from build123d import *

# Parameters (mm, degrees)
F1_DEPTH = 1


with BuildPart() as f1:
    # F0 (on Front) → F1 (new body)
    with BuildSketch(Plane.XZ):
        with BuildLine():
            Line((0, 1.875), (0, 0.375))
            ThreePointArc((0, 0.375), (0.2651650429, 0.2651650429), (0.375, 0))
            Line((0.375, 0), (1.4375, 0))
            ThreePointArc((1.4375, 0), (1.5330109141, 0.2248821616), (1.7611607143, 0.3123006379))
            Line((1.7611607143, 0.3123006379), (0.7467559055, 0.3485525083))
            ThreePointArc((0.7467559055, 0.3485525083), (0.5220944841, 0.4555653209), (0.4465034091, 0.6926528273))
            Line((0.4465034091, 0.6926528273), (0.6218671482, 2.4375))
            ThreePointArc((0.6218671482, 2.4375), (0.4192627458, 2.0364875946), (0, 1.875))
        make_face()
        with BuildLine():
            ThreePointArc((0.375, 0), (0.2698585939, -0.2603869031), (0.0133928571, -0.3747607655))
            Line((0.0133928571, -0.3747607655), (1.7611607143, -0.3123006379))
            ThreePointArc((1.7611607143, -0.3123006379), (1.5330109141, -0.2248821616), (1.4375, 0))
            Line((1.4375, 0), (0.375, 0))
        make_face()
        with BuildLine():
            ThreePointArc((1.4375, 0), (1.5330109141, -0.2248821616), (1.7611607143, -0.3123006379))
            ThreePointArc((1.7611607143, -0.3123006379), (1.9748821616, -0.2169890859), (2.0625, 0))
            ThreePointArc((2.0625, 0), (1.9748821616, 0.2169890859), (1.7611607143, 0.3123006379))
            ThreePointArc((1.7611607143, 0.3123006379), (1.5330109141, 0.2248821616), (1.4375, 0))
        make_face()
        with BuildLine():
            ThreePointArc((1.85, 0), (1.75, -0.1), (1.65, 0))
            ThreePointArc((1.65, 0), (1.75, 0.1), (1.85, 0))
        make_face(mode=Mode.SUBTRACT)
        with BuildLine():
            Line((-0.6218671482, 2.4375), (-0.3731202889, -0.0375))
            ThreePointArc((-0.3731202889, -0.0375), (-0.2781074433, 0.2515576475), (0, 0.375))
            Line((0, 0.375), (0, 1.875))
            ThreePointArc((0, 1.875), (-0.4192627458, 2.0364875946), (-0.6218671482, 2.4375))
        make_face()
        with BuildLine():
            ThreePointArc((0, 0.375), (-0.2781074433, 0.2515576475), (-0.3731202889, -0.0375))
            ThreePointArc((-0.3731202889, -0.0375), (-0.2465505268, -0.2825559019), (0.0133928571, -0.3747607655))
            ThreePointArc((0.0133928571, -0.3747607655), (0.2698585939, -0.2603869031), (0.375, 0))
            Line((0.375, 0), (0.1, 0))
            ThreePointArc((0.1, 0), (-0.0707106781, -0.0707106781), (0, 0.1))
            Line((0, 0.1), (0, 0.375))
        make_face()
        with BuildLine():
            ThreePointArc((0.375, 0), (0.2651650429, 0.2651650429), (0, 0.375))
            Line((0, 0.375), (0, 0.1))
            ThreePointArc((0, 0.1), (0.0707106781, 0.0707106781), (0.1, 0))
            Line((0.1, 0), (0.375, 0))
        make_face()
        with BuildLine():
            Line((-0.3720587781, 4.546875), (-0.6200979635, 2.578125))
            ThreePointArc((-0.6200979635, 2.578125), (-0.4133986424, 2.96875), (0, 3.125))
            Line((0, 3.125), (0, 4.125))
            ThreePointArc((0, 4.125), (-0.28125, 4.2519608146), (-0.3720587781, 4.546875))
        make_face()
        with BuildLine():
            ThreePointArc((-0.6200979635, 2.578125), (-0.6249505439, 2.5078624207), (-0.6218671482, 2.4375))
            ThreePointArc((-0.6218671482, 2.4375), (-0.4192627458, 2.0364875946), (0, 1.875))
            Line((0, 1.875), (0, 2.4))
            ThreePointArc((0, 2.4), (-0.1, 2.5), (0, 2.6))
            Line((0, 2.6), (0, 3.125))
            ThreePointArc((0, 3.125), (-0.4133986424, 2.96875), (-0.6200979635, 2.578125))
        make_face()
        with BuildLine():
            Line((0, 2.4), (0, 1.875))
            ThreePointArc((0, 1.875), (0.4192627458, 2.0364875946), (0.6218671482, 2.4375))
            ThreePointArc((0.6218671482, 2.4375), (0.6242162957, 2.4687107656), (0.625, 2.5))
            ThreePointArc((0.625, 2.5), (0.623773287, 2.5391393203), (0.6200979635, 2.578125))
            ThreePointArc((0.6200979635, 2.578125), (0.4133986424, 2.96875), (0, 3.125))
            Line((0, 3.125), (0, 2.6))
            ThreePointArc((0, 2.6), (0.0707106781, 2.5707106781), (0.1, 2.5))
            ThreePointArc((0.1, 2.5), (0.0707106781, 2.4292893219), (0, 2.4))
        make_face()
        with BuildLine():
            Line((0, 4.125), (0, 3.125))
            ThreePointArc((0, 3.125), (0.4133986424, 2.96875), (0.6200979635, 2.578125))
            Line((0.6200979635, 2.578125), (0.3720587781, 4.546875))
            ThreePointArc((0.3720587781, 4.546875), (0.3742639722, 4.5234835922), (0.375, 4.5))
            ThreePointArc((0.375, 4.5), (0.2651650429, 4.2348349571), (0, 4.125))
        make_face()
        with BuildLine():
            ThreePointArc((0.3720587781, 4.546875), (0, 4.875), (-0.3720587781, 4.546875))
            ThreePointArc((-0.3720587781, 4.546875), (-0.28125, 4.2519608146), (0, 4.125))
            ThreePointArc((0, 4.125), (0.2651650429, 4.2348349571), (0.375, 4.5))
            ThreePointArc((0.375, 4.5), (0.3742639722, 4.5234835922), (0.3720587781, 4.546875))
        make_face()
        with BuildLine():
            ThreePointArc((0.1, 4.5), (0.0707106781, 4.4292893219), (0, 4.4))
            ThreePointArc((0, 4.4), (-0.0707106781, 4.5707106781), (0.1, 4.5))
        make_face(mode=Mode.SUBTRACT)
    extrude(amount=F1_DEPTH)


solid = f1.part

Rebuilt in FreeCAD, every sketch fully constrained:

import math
import FreeCAD as App
import Part
import Sketcher

V = App.Vector
Q = App.Units.Quantity

doc = App.newDocument("Part")
body = doc.addObject("PartDesign::Body", "Body")

sketch1 = body.newObject("Sketcher::SketchObject", "Sketch")
sketch1.AttachmentSupport = (doc.getObject("XZ_Plane"), [""])
sketch1.MapMode = "FlatFace"
sketch1.addGeometry([
    Part.LineSegment(V(-0.37, 4.55, 0), V(-0.62, 2.58, 0)),
    Part.ArcOfCircle(Part.Circle(V(0, 2.5, 0), V(0, 0, 1), 0.63), math.radians(172.82), math.radians(185.74)),
    Part.LineSegment(V(-0.62, 2.44, 0), V(-0.37, -0.04, 0)),
    Part.ArcOfCircle(Part.Circle(V(0, 0, 0), V(0, 0, 1), 0.38), math.radians(-174), math.radians(-88)),
    Part.LineSegment(V(0.01, -0.37, 0), V(1.76, -0.31, 0)),
    Part.ArcOfCircle(Part.Circle(V(1.75, 0, 0), V(0, 0, 1), 0.31), math.radians(-88), math.radians(0)),
    Part.ArcOfCircle(Part.Circle(V(1.75, 0, 0), V(0, 0, 1), 0.31), math.radians(0), math.radians(88)),
    Part.LineSegment(V(1.76, 0.31, 0), V(0.75, 0.35, 0)),
    Part.ArcOfCircle(Part.Circle(V(0.76, 0.66, 0), V(0, 0, 1), 0.31), math.radians(174), math.radians(268)),
    Part.LineSegment(V(0.45, 0.69, 0), V(0.62, 2.44, 0)),
    Part.ArcOfCircle(Part.Circle(V(0, 2.5, 0), V(0, 0, 1), 0.62), math.radians(-5.74), math.radians(0)),
    Part.ArcOfCircle(Part.Circle(V(0, 2.5, 0), V(0, 0, 1), 0.63), math.radians(0), math.radians(7.18)),
    Part.LineSegment(V(0.62, 2.58, 0), V(0.37, 4.55, 0)),
    Part.ArcOfCircle(Part.Circle(V(0, 4.5, 0), V(0, 0, 1), 0.38), math.radians(7), math.radians(173)),
    Part.ArcOfCircle(Part.Circle(V(0, 0, 0), V(0, 0, 1), 0.1), math.radians(90), math.radians(360)),
    Part.ArcOfCircle(Part.Circle(V(0, 0, 0), V(0, 0, 1), 0.1), math.radians(0), math.radians(90)),
    Part.Circle(V(1.75, 0, 0), V(0, 0, 1), 0.1),
    Part.ArcOfCircle(Part.Circle(V(0, 2.5, 0), V(0, 0, 1), 0.1), math.radians(90), math.radians(270)),
    Part.ArcOfCircle(Part.Circle(V(0, 2.5, 0), V(0, 0, 1), 0.1), math.radians(0), math.radians(90)),
    Part.ArcOfCircle(Part.Circle(V(0, 2.5, 0), V(0, 0, 1), 0.1), math.radians(-90), math.radians(0)),
    Part.ArcOfCircle(Part.Circle(V(0, 4.5, 0), V(0, 0, 1), 0.1), math.radians(0), math.radians(270)),
    Part.ArcOfCircle(Part.Circle(V(0, 4.5, 0), V(0, 0, 1), 0.1), math.radians(-90), math.radians(0)),
], False)
sketch1.addConstraint([
    Sketcher.Constraint("Tangent", 0, 2, 1, 1),
    Sketcher.Constraint("Tangent", 1, 2, 2, 1),
    Sketcher.Constraint("Tangent", 2, 2, 3, 1),
    Sketcher.Constraint("Tangent", 3, 2, 4, 1),
    Sketcher.Constraint("Tangent", 4, 2, 5, 1),
    Sketcher.Constraint("Tangent", 5, 2, 6, 1),
    Sketcher.Constraint("Tangent", 6, 2, 7, 1),
    Sketcher.Constraint("Tangent", 7, 2, 8, 2),
    Sketcher.Constraint("Tangent", 8, 1, 9, 1),
    Sketcher.Constraint("Tangent", 9, 2, 10, 1),
    Sketcher.Constraint("Tangent", 10, 2, 11, 1),
    Sketcher.Constraint("Tangent", 11, 2, 12, 1),
    Sketcher.Constraint("Tangent", 12, 2, 13, 1),
    Sketcher.Constraint("Tangent", 13, 2, 0, 1),
    Sketcher.Constraint("Tangent", 14, 1, 15, 2),
    Sketcher.Constraint("Coincident", 15, 1, 14, 2),
    Sketcher.Constraint("Tangent", 17, 1, 18, 2),
    Sketcher.Constraint("Tangent", 18, 1, 19, 2),
    Sketcher.Constraint("Tangent", 19, 1, 17, 2),
    Sketcher.Constraint("Tangent", 20, 1, 21, 2),
    Sketcher.Constraint("Coincident", 21, 1, 20, 2),
    Sketcher.Constraint("Coincident", 3, 3, -1, 1),
    Sketcher.Constraint("Coincident", 14, 3, -1, 1),
    Sketcher.Constraint("Coincident", 10, 3, 1, 3),
    Sketcher.Constraint("Coincident", 16, 3, 5, 3),
    Sketcher.Constraint("Coincident", 17, 3, 1, 3),
    Sketcher.Constraint("Coincident", 20, 3, 13, 3),
    Sketcher.Constraint("Equal", 5, 6),
    Sketcher.Constraint("Equal", 1, 10),
    Sketcher.Constraint("Equal", 10, 11),
    Sketcher.Constraint("Equal", 3, 13),
    Sketcher.Constraint("Equal", 15, 16),
    Sketcher.Constraint("Equal", 16, 17),
    Sketcher.Constraint("Equal", 19, 20),
    Sketcher.Constraint("Symmetric", 1, 2, 9, 2, -2),
    Sketcher.Constraint("Symmetric", 4, 2, 6, 2, -1),
    Sketcher.Constraint("PointOnObject", 13, 3, -2),
    Sketcher.Constraint("PointOnObject", 5, 2, -1),
    Sketcher.Constraint("PointOnObject", 14, 1, -2),
    Sketcher.Constraint("PointOnObject", 15, 1, -1),
    Sketcher.Constraint("PointOnObject", 17, 1, -2),
    Sketcher.Constraint("PointOnObject", 19, 1, -2),
    Sketcher.Constraint("PointOnObject", 21, 1, -2),
    Sketcher.Constraint("Horizontal", 19, 3, 10, 2),
    Sketcher.Constraint("Horizontal", 10, 2, 18, 1),
    Sketcher.Constraint("Horizontal", 21, 3, 20, 1),
    Sketcher.Constraint("Diameter", 16, Q("0.2 mm")),
    Sketcher.Constraint("Radius", 1, Q("0.625 mm")),
    Sketcher.Constraint("Radius", 3, Q("0.375 mm")),
    Sketcher.Constraint("Radius", 8, Q("0.313 mm")),
    Sketcher.Constraint("DistanceY", 1, 3, 13, 3, Q("2 mm")),
    Sketcher.Constraint("DistanceY", -1, 1, 1, 3, Q("2.5 mm")),
    Sketcher.Constraint("Radius", 5, Q("0.3125 mm")),
    Sketcher.Constraint("DistanceX", -1, 1, 5, 3, Q("1.75 mm")),
])
pad1 = body.newObject("PartDesign::Pad", "Pad")
pad1.Profile = sketch1
pad1.Length = 1

doc.recompute()
